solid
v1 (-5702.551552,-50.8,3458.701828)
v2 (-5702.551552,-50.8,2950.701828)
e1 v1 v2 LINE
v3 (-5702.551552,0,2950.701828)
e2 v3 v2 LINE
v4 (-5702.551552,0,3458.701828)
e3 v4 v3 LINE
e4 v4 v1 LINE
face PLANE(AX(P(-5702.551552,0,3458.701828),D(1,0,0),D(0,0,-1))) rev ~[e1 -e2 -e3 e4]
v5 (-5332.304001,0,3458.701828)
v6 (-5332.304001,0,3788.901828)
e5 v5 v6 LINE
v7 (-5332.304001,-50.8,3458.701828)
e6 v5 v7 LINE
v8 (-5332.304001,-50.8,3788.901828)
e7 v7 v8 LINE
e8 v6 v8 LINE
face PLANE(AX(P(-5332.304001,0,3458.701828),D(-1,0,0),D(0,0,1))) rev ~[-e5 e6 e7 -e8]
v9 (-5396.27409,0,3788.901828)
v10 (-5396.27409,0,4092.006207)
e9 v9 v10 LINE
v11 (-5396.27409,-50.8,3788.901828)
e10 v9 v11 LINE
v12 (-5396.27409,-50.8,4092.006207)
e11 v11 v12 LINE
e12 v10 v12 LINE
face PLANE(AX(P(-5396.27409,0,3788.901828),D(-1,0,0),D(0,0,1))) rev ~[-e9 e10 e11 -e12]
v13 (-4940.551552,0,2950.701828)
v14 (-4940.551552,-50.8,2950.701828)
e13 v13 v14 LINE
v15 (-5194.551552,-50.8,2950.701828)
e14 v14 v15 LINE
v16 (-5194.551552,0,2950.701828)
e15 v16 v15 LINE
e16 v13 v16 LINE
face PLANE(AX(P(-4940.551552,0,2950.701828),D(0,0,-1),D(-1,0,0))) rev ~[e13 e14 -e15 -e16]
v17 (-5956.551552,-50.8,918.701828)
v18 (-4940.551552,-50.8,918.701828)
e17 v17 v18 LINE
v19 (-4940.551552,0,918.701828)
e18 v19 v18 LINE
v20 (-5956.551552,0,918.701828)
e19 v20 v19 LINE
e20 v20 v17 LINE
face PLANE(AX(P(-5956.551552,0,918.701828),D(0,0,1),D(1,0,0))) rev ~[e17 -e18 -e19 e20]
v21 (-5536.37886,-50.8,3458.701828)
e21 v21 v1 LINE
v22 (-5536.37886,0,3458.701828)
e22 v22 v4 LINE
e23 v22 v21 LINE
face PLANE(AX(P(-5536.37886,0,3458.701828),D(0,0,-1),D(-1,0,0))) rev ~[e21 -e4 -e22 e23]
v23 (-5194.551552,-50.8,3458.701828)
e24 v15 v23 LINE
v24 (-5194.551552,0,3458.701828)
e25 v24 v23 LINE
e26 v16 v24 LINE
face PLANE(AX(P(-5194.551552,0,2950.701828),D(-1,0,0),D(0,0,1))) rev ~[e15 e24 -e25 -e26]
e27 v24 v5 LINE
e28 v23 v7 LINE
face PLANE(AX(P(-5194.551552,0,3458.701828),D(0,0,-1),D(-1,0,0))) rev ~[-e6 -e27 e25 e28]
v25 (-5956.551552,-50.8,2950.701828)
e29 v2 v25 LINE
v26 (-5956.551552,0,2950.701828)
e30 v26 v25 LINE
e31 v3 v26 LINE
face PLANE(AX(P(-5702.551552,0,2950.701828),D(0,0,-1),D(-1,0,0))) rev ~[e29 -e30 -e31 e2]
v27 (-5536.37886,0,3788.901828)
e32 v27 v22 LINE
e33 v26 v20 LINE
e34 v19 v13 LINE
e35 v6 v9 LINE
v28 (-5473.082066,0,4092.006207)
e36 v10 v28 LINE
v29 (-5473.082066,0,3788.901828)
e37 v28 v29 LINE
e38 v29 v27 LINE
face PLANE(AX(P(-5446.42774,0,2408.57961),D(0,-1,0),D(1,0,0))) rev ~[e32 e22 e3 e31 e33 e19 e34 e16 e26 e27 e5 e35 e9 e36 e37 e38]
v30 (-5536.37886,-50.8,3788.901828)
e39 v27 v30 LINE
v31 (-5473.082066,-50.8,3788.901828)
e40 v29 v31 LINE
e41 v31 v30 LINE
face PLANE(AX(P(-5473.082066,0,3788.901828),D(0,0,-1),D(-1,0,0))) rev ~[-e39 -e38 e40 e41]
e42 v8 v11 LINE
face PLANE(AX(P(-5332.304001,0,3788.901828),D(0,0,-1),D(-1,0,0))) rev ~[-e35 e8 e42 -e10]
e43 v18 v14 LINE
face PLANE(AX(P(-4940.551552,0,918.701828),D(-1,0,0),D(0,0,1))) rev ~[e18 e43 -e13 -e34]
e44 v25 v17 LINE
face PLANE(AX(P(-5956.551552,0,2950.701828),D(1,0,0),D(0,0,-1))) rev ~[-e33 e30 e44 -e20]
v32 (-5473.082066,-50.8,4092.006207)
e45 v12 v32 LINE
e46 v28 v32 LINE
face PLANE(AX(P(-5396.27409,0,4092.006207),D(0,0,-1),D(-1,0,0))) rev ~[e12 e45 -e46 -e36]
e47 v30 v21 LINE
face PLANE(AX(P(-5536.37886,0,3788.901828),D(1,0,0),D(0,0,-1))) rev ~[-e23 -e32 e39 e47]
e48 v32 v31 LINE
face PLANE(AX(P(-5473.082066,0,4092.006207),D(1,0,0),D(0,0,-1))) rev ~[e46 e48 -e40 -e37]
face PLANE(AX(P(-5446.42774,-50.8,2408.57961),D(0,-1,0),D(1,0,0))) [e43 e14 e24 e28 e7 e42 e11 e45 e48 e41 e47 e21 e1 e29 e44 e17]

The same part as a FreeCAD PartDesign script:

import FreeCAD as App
import Part
import Sketcher
Q = App.Units.Quantity

doc = App.newDocument("Part")
body = doc.addObject("PartDesign::Body", "Body")

# Sketch on XZ plane
sketch1 = body.newObject("Sketcher::SketchObject", "Sketch")
sketch1.AttachmentSupport = (doc.getObject("XZ_Plane"), [""])
sketch1.MapMode = "FlatFace"
sketch1.addGeometry(Part.LineSegment(App.Vector(-5956.551552, 2950.701828, 0), App.Vector(-5956.551552, 918.701828, 0)), False)
sketch1.addGeometry(Part.LineSegment(App.Vector(-5956.551552, 918.701828, 0), App.Vector(-4940.551552, 918.701828, 0)), False)
sketch1.addGeometry(Part.LineSegment(App.Vector(-4940.551552, 918.701828, 0), App.Vector(-4940.551552, 2950.701828, 0)), False)
sketch1.addGeometry(Part.LineSegment(App.Vector(-4940.551552, 2950.701828, 0), App.Vector(-5194.551552, 2950.701828, 0)), False)
sketch1.addGeometry(Part.LineSegment(App.Vector(-5194.551552, 2950.701828, 0), App.Vector(-5194.551552, 3458.701828, 0)), False)
sketch1.addGeometry(Part.LineSegment(App.Vector(-5194.551552, 3458.701828, 0), App.Vector(-5332.304001, 3458.701828, 0)), False)
sketch1.addGeometry(Part.LineSegment(App.Vector(-5332.304001, 3458.701828, 0), App.Vector(-5332.304001, 3788.901828, 0)), False)
sketch1.addGeometry(Part.LineSegment(App.Vector(-5332.304001, 3788.901828, 0), App.Vector(-5396.27409, 3788.901828, 0)), False)
sketch1.addGeometry(Part.LineSegment(App.Vector(-5396.27409, 3788.901828, 0), App.Vector(-5396.27409, 4092.006207, 0)), False)
sketch1.addGeometry(Part.LineSegment(App.Vector(-5396.27409, 4092.006207, 0), App.Vector(-5473.082066, 4092.006207, 0)), False)
sketch1.addGeometry(Part.LineSegment(App.Vector(-5473.082066, 4092.006207, 0), App.Vector(-5473.082066, 3788.901828, 0)), False)
sketch1.addGeometry(Part.LineSegment(App.Vector(-5473.082066, 3788.901828, 0), App.Vector(-5536.37886, 3788.901828, 0)), False)
sketch1.addGeometry(Part.LineSegment(App.Vector(-5536.37886, 3788.901828, 0), App.Vector(-5536.37886, 3458.701828, 0)), False)
sketch1.addGeometry(Part.LineSegment(App.Vector(-5536.37886, 3458.701828, 0), App.Vector(-5702.551552, 3458.701828, 0)), False)
sketch1.addGeometry(Part.LineSegment(App.Vector(-5702.551552, 3458.701828, 0), App.Vector(-5702.551552, 2950.701828, 0)), False)
sketch1.addGeometry(Part.LineSegment(App.Vector(-5702.551552, 2950.701828, 0), App.Vector(-5956.551552, 2950.701828, 0)), False)
sketch1.addConstraint(Sketcher.Constraint("Coincident", 0, 2, 1, 1))
sketch1.addConstraint(Sketcher.Constraint("Coincident", 1, 2, 2, 1))
sketch1.addConstraint(Sketcher.Constraint("Coincident", 2, 2, 3, 1))
sketch1.addConstraint(Sketcher.Constraint("Coincident", 3, 2, 4, 1))
sketch1.addConstraint(Sketcher.Constraint("Coincident", 4, 2, 5, 1))
sketch1.addConstraint(Sketcher.Constraint("Coincident", 5, 2, 6, 1))
sketch1.addConstraint(Sketcher.Constraint("Coincident", 6, 2, 7, 1))
sketch1.addConstraint(Sketcher.Constraint("Coincident", 7, 2, 8, 1))
sketch1.addConstraint(Sketcher.Constraint("Coincident", 8, 2, 9, 1))
sketch1.addConstraint(Sketcher.Constraint("Coincident", 9, 2, 10, 1))
sketch1.addConstraint(Sketcher.Constraint("Coincident", 10, 2, 11, 1))
sketch1.addConstraint(Sketcher.Constraint("Coincident", 11, 2, 12, 1))
sketch1.addConstraint(Sketcher.Constraint("Coincident", 12, 2, 13, 1))
sketch1.addConstraint(Sketcher.Constraint("Coincident", 13, 2, 14, 1))
sketch1.addConstraint(Sketcher.Constraint("Coincident", 14, 2, 15, 1))
sketch1.addConstraint(Sketcher.Constraint("Coincident", 15, 2, 0, 1))
sketch1.addConstraint(Sketcher.Constraint("Vertical", 0))
sketch1.addConstraint(Sketcher.Constraint("Horizontal", 1))
sketch1.addConstraint(Sketcher.Constraint("Vertical", 2))
sketch1.addConstraint(Sketcher.Constraint("Horizontal", 3))
sketch1.addConstraint(Sketcher.Constraint("Vertical", 4))
sketch1.addConstraint(Sketcher.Constraint("Horizontal", 5))
sketch1.addConstraint(Sketcher.Constraint("Vertical", 6))
sketch1.addConstraint(Sketcher.Constraint("Horizontal", 7))
sketch1.addConstraint(Sketcher.Constraint("Vertical", 8))
sketch1.addConstraint(Sketcher.Constraint("Horizontal", 9))
sketch1.addConstraint(Sketcher.Constraint("Vertical", 10))
sketch1.addConstraint(Sketcher.Constraint("Horizontal", 11))
sketch1.addConstraint(Sketcher.Constraint("Vertical", 12))
sketch1.addConstraint(Sketcher.Constraint("Horizontal", 13))
sketch1.addConstraint(Sketcher.Constraint("Vertical", 14))
sketch1.addConstraint(Sketcher.Constraint("Horizontal", 15))
sketch1.addConstraint(Sketcher.Constraint("Horizontal", 7, 2, 10, 2))
sketch1.addConstraint(Sketcher.Constraint("Horizontal", 5, 2, 12, 2))
sketch1.addConstraint(Sketcher.Constraint("Horizontal", 3, 2, 14, 2))
sketch1.addConstraint(Sketcher.Constraint("Equal", 3, 15))
sketch1.addConstraint(Sketcher.Constraint("DistanceX", 1, 1, 1, 2, Q("40 in")))
sketch1.addConstraint(Sketcher.Constraint("DistanceX", 3, 2, 3, 1, Q("10 in")))
sketch1.addConstraint(Sketcher.Constraint("DistanceY", 0, 2, 0, 1, Q("80 in")))
sketch1.addConstraint(Sketcher.Constraint("DistanceY", 4, 1, 4, 2, Q("20 in")))
sketch1.addConstraint(Sketcher.Constraint("DistanceY", 6, 1, 6, 2, Q("13 in")))
sketch1.addConstraint(Sketcher.Constraint("DistanceX", 5, 2, 5, 1, 137.752449))
sketch1.addConstraint(Sketcher.Constraint("DistanceX", 7, 2, 7, 1, 63.970089))
sketch1.addConstraint(Sketcher.Constraint("DistanceY", 8, 1, 8, 2, 303.104379))
sketch1.addConstraint(Sketcher.Constraint("DistanceX", 5, 2, -1, 1, 5332.304001))
sketch1.addConstraint(Sketcher.Constraint("DistanceX", 9, 2, 9, 1, 76.807976))
sketch1.addConstraint(Sketcher.Constraint("DistanceX", 11, 2, 11, 1, 63.296794))
sketch1.addConstraint(Sketcher.Constraint("DistanceY", -1, 1, 0, 2, 918.701828))
pad1 = body.newObject("PartDesign::Pad", "Pad")
pad1.Profile = sketch1
pad1.Length = Q("2 in")

# Sketch on XZ plane
sketch2 = body.newObject("Sketcher::SketchObject", "Sketch001")
sketch2.AttachmentSupport = (doc.getObject("XZ_Plane"), [""])
sketch2.MapMode = "FlatFace"
sketch2.addGeometry(Part.LineSegment(App.Vector(-5956.551552, 2950.701828, 0), App.Vector(-5956.551552, 918.701828, 0)), False)
sketch2.addGeometry(Part.LineSegment(App.Vector(-5956.551552, 918.701828, 0), App.Vector(-4940.551552, 918.701828, 0)), False)
sketch2.addGeometry(Part.LineSegment(App.Vector(-4940.551552, 918.701828, 0), App.Vector(-4940.551552, 2950.701828, 0)), False)
sketch2.addGeometry(Part.LineSegment(App.Vector(-4940.551552, 2950.701828, 0), App.Vector(-5194.551552, 2950.701828, 0)), False)
sketch2.addGeometry(Part.LineSegment(App.Vector(-5194.551552, 2950.701828, 0), App.Vector(-5194.551552, 3458.701828, 0)), False)
sketch2.addGeometry(Part.LineSegment(App.Vector(-5194.551552, 3458.701828, 0), App.Vector(-5332.304001, 3458.701828, 0)), False)
sketch2.addGeometry(Part.LineSegment(App.Vector(-5332.304001, 3458.701828, 0), App.Vector(-5332.304001, 3788.901828, 0)), False)
sketch2.addGeometry(Part.LineSegment(App.Vector(-5332.304001, 3788.901828, 0), App.Vector(-5396.27409, 3788.901828, 0)), False)
sketch2.addGeometry(Part.LineSegment(App.Vector(-5396.27409, 3788.901828, 0), App.Vector(-5396.27409, 4092.006207, 0)), False)
sketch2.addGeometry(Part.LineSegment(App.Vector(-5396.27409, 4092.006207, 0), App.Vector(-5473.082066, 4092.006207, 0)), False)
sketch2.addGeometry(Part.LineSegment(App.Vector(-5473.082066, 4092.006207, 0), App.Vector(-5473.082066, 3788.901828, 0)), False)
sketch2.addGeometry(Part.LineSegment(App.Vector(-5473.082066, 3788.901828, 0), App.Vector(-5536.37886, 3788.901828, 0)), False)
sketch2.addGeometry(Part.LineSegment(App.Vector(-5536.37886, 3788.901828, 0), App.Vector(-5536.37886, 3458.701828, 0)), False)
sketch2.addGeometry(Part.LineSegment(App.Vector(-5536.37886, 3458.701828, 0), App.Vector(-5702.551552, 3458.701828, 0)), False)
sketch2.addGeometry(Part.LineSegment(App.Vector(-5702.551552, 3458.701828, 0), App.Vector(-5702.551552, 2950.701828, 0)), False)
sketch2.addGeometry(Part.LineSegment(App.Vector(-5702.551552, 2950.701828, 0), App.Vector(-5956.551552, 2950.701828, 0)), False)
sketch2.addConstraint(Sketcher.Constraint("Coincident", 0, 2, 1, 1))
sketch2.addConstraint(Sketcher.Constraint("Coincident", 1, 2, 2, 1))
sketch2.addConstraint(Sketcher.Constraint("Coincident", 2, 2, 3, 1))
sketch2.addConstraint(Sketcher.Constraint("Coincident", 3, 2, 4, 1))
sketch2.addConstraint(Sketcher.Constraint("Coincident", 4, 2, 5, 1))
sketch2.addConstraint(Sketcher.Constraint("Coincident", 5, 2, 6, 1))
sketch2.addConstraint(Sketcher.Constraint("Coincident", 6, 2, 7, 1))
sketch2.addConstraint(Sketcher.Constraint("Coincident", 7, 2, 8, 1))
sketch2.addConstraint(Sketcher.Constraint("Coincident", 8, 2, 9, 1))
sketch2.addConstraint(Sketcher.Constraint("Coincident", 9, 2, 10, 1))
sketch2.addConstraint(Sketcher.Constraint("Coincident", 10, 2, 11, 1))
sketch2.addConstraint(Sketcher.Constraint("Coincident", 11, 2, 12, 1))
sketch2.addConstraint(Sketcher.Constraint("Coincident", 12, 2, 13, 1))
sketch2.addConstraint(Sketcher.Constraint("Coincident", 13, 2, 14, 1))
sketch2.addConstraint(Sketcher.Constraint("Coincident", 14, 2, 15, 1))
sketch2.addConstraint(Sketcher.Constraint("Coincident", 15, 2, 0, 1))
sketch2.addConstraint(Sketcher.Constraint("Vertical", 0))
sketch2.addConstraint(Sketcher.Constraint("Horizontal", 1))
sketch2.addConstraint(Sketcher.Constraint("Vertical", 2))
sketch2.addConstraint(Sketcher.Constraint("Horizontal", 3))
sketch2.addConstraint(Sketcher.Constraint("Vertical", 4))
sketch2.addConstraint(Sketcher.Constraint("Horizontal", 5))
sketch2.addConstraint(Sketcher.Constraint("Vertical", 6))
sketch2.addConstraint(Sketcher.Constraint("Horizontal", 7))
sketch2.addConstraint(Sketcher.Constraint("Vertical", 8))
sketch2.addConstraint(Sketcher.Constraint("Horizontal", 9))
sketch2.addConstraint(Sketcher.Constraint("Vertical", 10))
sketch2.addConstraint(Sketcher.Constraint("Horizontal", 11))
sketch2.addConstraint(Sketcher.Constraint("Vertical", 12))
sketch2.addConstraint(Sketcher.Constraint("Horizontal", 13))
sketch2.addConstraint(Sketcher.Constraint("Vertical", 14))
sketch2.addConstraint(Sketcher.Constraint("Horizontal", 15))
sketch2.addConstraint(Sketcher.Constraint("Horizontal", 7, 2, 10, 2))
sketch2.addConstraint(Sketcher.Constraint("Horizontal", 5, 2, 12, 2))
sketch2.addConstraint(Sketcher.Constraint("Horizontal", 3, 2, 14, 2))
sketch2.addConstraint(Sketcher.Constraint("Equal", 3, 15))
sketch2.addConstraint(Sketcher.Constraint("DistanceX", 1, 1, 1, 2, Q("40 in")))
sketch2.addConstraint(Sketcher.Constraint("DistanceX", 3, 2, 3, 1, Q("10 in")))
sketch2.addConstraint(Sketcher.Constraint("DistanceY", 0, 2, 0, 1, Q("80 in")))
sketch2.addConstraint(Sketcher.Constraint("DistanceY", 4, 1, 4, 2, Q("20 in")))
sketch2.addConstraint(Sketcher.Constraint("DistanceY", 6, 1, 6, 2, Q("13 in")))
sketch2.addConstraint(Sketcher.Constraint("DistanceX", 5, 2, 5, 1, 137.752449))
sketch2.addConstraint(Sketcher.Constraint("DistanceX", 7, 2, 7, 1, 63.970089))
sketch2.addConstraint(Sketcher.Constraint("DistanceY", 8, 1, 8, 2, 303.104379))
sketch2.addConstraint(Sketcher.Constraint("DistanceX", 5, 2, -1, 1, 5332.304001))
sketch2.addConstraint(Sketcher.Constraint("DistanceX", 9, 2, 9, 1, 76.807976))
sketch2.addConstraint(Sketcher.Constraint("DistanceX", 11, 2, 11, 1, 63.296794))
sketch2.addConstraint(Sketcher.Constraint("DistanceY", -1, 1, 0, 2, 918.701828))
pad2 = body.newObject("PartDesign::Pad", "Pad001")
pad2.Profile = sketch2
pad2.Length = Q("2 in")

doc.recompute()
